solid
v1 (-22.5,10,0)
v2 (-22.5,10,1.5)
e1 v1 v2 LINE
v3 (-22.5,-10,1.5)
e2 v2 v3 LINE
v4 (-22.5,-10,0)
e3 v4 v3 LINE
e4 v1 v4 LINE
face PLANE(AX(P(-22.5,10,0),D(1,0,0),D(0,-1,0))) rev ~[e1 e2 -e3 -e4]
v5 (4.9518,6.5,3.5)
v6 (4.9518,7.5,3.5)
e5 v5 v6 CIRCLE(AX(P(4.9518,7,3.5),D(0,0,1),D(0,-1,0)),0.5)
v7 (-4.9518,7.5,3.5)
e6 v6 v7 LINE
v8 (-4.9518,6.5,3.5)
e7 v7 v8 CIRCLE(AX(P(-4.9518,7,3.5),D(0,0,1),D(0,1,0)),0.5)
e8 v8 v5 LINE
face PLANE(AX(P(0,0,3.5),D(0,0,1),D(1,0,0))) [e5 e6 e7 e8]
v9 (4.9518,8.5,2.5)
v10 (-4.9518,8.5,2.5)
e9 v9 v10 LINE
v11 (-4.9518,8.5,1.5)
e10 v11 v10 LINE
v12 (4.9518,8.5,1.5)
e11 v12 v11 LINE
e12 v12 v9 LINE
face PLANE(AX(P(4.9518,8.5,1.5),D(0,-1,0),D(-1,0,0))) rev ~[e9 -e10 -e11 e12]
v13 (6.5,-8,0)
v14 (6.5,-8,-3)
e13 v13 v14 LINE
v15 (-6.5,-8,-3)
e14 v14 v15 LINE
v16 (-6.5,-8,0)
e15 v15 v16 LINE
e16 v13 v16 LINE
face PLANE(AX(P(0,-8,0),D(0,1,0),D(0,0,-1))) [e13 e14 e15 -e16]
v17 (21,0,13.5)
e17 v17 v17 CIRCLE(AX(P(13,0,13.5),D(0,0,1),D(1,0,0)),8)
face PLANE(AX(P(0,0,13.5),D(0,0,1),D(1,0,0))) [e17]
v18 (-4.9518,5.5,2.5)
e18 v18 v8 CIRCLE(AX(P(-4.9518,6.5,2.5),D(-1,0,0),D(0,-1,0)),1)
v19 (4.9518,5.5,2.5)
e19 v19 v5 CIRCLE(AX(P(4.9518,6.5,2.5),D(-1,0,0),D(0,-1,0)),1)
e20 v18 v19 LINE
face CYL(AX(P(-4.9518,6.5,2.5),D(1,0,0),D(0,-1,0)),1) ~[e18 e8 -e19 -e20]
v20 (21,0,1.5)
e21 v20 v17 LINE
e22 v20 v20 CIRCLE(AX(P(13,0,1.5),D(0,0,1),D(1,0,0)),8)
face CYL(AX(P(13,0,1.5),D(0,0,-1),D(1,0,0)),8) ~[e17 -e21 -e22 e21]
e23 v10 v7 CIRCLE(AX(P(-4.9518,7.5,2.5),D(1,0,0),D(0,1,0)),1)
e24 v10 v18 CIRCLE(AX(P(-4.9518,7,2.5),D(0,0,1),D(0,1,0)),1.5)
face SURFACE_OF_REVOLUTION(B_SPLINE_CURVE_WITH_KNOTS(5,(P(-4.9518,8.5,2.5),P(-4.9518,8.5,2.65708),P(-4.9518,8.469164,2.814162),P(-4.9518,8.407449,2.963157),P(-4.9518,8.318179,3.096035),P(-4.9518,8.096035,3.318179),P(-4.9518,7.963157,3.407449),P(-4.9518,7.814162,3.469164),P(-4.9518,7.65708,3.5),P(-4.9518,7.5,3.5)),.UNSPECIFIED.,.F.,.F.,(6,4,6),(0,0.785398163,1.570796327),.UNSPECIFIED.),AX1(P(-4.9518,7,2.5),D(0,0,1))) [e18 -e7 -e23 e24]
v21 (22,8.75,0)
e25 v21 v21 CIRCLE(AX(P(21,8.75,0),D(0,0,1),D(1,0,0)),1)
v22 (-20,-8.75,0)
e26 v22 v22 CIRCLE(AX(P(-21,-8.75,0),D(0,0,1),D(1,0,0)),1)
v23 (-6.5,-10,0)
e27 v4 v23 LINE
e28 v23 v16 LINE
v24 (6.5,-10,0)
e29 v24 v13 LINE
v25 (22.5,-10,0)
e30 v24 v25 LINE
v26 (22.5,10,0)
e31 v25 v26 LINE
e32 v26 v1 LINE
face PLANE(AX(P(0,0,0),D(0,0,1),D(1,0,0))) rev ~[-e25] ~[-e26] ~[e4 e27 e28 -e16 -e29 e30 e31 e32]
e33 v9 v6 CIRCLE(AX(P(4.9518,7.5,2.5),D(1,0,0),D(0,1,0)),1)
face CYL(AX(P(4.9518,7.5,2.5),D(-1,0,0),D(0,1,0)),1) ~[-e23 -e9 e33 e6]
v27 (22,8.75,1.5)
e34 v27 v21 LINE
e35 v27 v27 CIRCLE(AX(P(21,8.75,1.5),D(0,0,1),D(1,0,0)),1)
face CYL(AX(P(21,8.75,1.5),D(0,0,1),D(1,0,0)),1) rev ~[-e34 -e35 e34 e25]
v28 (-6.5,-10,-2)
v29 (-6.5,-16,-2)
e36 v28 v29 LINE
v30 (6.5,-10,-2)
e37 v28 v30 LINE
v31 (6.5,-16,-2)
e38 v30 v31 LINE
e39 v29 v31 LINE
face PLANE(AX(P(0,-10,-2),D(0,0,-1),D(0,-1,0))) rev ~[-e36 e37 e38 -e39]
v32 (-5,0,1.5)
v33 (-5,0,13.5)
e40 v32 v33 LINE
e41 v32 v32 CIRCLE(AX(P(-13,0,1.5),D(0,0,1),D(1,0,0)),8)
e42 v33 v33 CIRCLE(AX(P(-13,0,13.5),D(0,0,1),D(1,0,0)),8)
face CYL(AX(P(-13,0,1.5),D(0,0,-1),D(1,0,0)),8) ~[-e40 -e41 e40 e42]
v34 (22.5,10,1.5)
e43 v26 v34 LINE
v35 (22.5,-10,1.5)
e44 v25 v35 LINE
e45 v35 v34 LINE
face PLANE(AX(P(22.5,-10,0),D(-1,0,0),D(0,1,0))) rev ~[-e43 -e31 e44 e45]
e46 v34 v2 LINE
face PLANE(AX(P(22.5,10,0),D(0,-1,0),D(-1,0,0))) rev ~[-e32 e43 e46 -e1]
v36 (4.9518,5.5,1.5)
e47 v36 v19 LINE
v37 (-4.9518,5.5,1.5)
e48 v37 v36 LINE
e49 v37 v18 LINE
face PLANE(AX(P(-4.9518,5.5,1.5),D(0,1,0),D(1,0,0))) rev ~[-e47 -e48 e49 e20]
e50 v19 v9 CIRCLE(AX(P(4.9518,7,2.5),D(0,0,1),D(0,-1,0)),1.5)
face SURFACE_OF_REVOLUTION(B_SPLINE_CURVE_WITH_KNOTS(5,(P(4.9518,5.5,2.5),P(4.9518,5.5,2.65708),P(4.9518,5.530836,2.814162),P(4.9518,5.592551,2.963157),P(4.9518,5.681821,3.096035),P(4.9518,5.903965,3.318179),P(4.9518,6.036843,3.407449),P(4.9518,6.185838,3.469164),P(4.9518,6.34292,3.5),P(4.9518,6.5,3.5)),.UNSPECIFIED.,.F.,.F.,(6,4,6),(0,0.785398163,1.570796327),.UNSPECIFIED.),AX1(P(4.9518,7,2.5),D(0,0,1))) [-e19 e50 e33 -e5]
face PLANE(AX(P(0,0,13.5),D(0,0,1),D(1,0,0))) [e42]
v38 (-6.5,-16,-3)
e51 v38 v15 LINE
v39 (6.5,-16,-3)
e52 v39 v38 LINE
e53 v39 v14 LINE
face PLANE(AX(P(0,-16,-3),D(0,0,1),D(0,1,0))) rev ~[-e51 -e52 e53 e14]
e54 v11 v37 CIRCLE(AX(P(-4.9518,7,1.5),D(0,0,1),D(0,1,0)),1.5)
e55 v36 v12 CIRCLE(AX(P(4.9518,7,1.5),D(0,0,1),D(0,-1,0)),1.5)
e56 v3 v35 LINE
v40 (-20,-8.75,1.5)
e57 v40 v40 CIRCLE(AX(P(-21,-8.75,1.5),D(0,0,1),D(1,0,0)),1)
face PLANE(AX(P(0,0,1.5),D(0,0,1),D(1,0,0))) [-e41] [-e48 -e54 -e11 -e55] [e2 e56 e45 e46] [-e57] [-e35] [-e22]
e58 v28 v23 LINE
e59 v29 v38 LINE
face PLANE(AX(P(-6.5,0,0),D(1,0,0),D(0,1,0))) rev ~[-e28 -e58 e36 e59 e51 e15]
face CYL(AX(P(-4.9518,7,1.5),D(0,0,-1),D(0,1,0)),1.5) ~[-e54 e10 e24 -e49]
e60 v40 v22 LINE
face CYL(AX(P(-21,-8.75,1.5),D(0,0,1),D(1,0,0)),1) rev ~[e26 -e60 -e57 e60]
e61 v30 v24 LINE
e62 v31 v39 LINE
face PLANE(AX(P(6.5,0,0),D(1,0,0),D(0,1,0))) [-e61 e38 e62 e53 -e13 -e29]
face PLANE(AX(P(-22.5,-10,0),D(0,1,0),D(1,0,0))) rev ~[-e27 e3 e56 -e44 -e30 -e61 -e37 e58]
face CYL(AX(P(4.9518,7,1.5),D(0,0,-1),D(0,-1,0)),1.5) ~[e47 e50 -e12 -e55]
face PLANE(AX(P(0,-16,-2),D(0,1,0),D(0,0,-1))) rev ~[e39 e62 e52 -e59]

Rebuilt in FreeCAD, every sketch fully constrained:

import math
import FreeCAD as App
import Part
import Sketcher

V = App.Vector


def edges_at(feature, points):
    """Names of the edges that pass closest to the given points."""
    edges = feature.Shape.Edges
    near = lambda p: min(range(len(edges)), key=lambda i: edges[i].distToShape(Part.Vertex(*p))[0])
    return sorted({f"Edge{near(p) + 1}" for p in points})

doc = App.newDocument("Part")
body = doc.addObject("PartDesign::Body", "Body")

# Sketch on XY plane
sketch1 = body.newObject("Sketcher::SketchObject", "Sketch")
sketch1.AttachmentSupport = (doc.getObject("XY_Plane"), [""])
sketch1.MapMode = "FlatFace"
sketch1.addGeometry(Part.LineSegment(V(-22, 10, 0), V(-22, -10, 0)), False)
sketch1.addGeometry(Part.LineSegment(V(-22, -10, 0), V(22, -10, 0)), False)
sketch1.addGeometry(Part.LineSegment(V(22, -10, 0), V(22, 10, 0)), False)
sketch1.addGeometry(Part.LineSegment(V(22, 10, 0), V(-22, 10, 0)), False)
sketch1.addConstraint(Sketcher.Constraint("Coincident", 0, 2, 1, 1))
sketch1.addConstraint(Sketcher.Constraint("Coincident", 1, 2, 2, 1))
sketch1.addConstraint(Sketcher.Constraint("Coincident", 2, 2, 3, 1))
sketch1.addConstraint(Sketcher.Constraint("Coincident", 3, 2, 0, 1))
sketch1.addConstraint(Sketcher.Constraint("Vertical", 0))
sketch1.addConstraint(Sketcher.Constraint("Horizontal", 1))
sketch1.addConstraint(Sketcher.Constraint("Vertical", 2))
sketch1.addConstraint(Sketcher.Constraint("Horizontal", 3))
sketch1.addConstraint(Sketcher.Constraint("Symmetric", 0, 2, 2, 2, -1, 1))
sketch1.addConstraint(Sketcher.Constraint("DistanceX", 1, 1, 1, 2, 45.0))
sketch1.addConstraint(Sketcher.Constraint("DistanceY", 0, 2, 0, 1, 20.0))
pad1 = body.newObject("PartDesign::Pad", "Pad")
pad1.Profile = sketch1
pad1.Length = 1.5

# Sketch on XY plane
sketch2 = body.newObject("Sketcher::SketchObject", "Sketch001")
sketch2.AttachmentSupport = (doc.getObject("XY_Plane"), [""])
sketch2.MapMode = "FlatFace"
sketch2.AttachmentOffset = App.Placement(V(0, 0, 1.5), App.Rotation())
sketch2.addGeometry(Part.Circle(V(13, 0, 0), V(0, 0, 1), 8), False)
sketch2.addGeometry(Part.Circle(V(-13, 0, 0), V(0, 0, 1), 8), False)
sketch2.addConstraint(Sketcher.Constraint("Equal", 0, 1))
sketch2.addConstraint(Sketcher.Constraint("Symmetric", 0, 3, 1, 3, -1, 1))
sketch2.addConstraint(Sketcher.Constraint("PointOnObject", 0, 3, -1))
sketch2.addConstraint(Sketcher.Constraint("Diameter", 0, 16.0))
sketch2.addConstraint(Sketcher.Constraint("DistanceX", -1, 1, 0, 3, 13.0))
pad2 = body.newObject("PartDesign::Pad", "Pad001")
pad2.Profile = sketch2
pad2.Length = 12

# Sketch on XY plane
sketch3 = body.newObject("Sketcher::SketchObject", "Sketch002")
sketch3.AttachmentSupport = (doc.getObject("XY_Plane"), [""])
sketch3.MapMode = "FlatFace"
sketch3.AttachmentOffset = App.Placement(V(0, 0, 1.5), App.Rotation())
sketch3.addGeometry(Part.ArcOfCircle(Part.Circle(V(-5, 7, 0), V(0, 0, 1), 1.5), math.radians(90), math.radians(270)), False)
sketch3.addGeometry(Part.LineSegment(V(-5, 5.5, 0), V(5, 5.5, 0)), False)
sketch3.addGeometry(Part.ArcOfCircle(Part.Circle(V(5, 7, 0), V(0, 0, 1), 1.5), math.radians(-90), math.radians(90)), False)
sketch3.addGeometry(Part.LineSegment(V(5, 8.5, 0), V(-5, 8.5, 0)), False)
sketch3.addConstraint(Sketcher.Constraint("Tangent", 0, 2, 1, 1))
sketch3.addConstraint(Sketcher.Constraint("Tangent", 1, 2, 2, 1))
sketch3.addConstraint(Sketcher.Constraint("Tangent", 2, 2, 3, 1))
sketch3.addConstraint(Sketcher.Constraint("Tangent", 3, 2, 0, 1))
sketch3.addConstraint(Sketcher.Constraint("Horizontal", 1))
sketch3.addConstraint(Sketcher.Constraint("Horizontal", 3))
sketch3.addConstraint(Sketcher.Constraint("Radius", 0, 1.5))
sketch3.addConstraint(Sketcher.Constraint("DistanceY", -1, 1, 0, 3, 7.0))
sketch3.addConstraint(Sketcher.Constraint("DistanceX", 1, 1, 1, 2, 9.9036))
sketch3.addConstraint(Sketcher.Constraint("DistanceX", 0, 3, -1, 1, 4.9518))
pad3 = body.newObject("PartDesign::Pad", "Pad002")
pad3.Profile = sketch3
pad3.Length = 2
doc.recompute()

fillet = body.newObject("PartDesign::Fillet", "Fillet")
fillet.Base = (pad3, edges_at(pad3, [
    (0, 8.5, 3.5),
    (-6.452, 7, 3.5),
    (0, 5.5, 3.5),
    (6.452, 7, 3.5),
]))
fillet.Radius = 1

# Sketch on XY plane
sketch4 = body.newObject("Sketcher::SketchObject", "Sketch003")
sketch4.AttachmentSupport = (doc.getObject("XY_Plane"), [""])
sketch4.MapMode = "FlatFace"
sketch4.AttachmentOffset = App.Placement(V(0, 0, 1.5), App.Rotation())
sketch4.addGeometry(Part.Circle(V(21, 8.8, 0), V(0, 0, 1), 1), False)
sketch4.addGeometry(Part.Circle(V(-21, -8.8, 0), V(0, 0, 1), 1), False)
sketch4.addConstraint(Sketcher.Constraint("Equal", 0, 1))
sketch4.addConstraint(Sketcher.Constraint("Symmetric", 0, 3, 1, 3, -1, 1))
sketch4.addConstraint(Sketcher.Constraint("Diameter", 0, 2.0))
sketch4.addConstraint(Sketcher.Constraint("DistanceX", -1, 1, 0, 3, 21.0))
sketch4.addConstraint(Sketcher.Constraint("DistanceY", 1, 3, 0, 3, 17.5))
pocket1 = body.newObject("PartDesign::Pocket", "Pocket")
pocket1.Profile = sketch4
pocket1.Type = "ThroughAll"

# Sketch on YZ plane
sketch5 = body.newObject("Sketcher::SketchObject", "Sketch004")
sketch5.AttachmentSupport = (doc.getObject("YZ_Plane"), [""])
sketch5.MapMode = "FlatFace"
sketch5.addGeometry(Part.LineSegment(V(-8, 0, 0), V(-10, 0, 0)), False)
sketch5.addGeometry(Part.LineSegment(V(-10, 0, 0), V(-10, -2, 0)), False)
sketch5.addGeometry(Part.LineSegment(V(-10, -2, 0), V(-16, -2, 0)), False)
sketch5.addGeometry(Part.LineSegment(V(-16, -2, 0), V(-16, -3, 0)), False)
sketch5.addGeometry(Part.LineSegment(V(-16, -3, 0), V(-8, -3, 0)), False)
sketch5.addGeometry(Part.LineSegment(V(-8, -3, 0), V(-8, 0, 0)), False)
sketch5.addConstraint(Sketcher.Constraint("Coincident", 0, 2, 1, 1))
sketch5.addConstraint(Sketcher.Constraint("Coincident", 1, 2, 2, 1))
sketch5.addConstraint(Sketcher.Constraint("Coincident", 2, 2, 3, 1))
sketch5.addConstraint(Sketcher.Constraint("Coincident", 3, 2, 4, 1))
sketch5.addConstraint(Sketcher.Constraint("Coincident", 4, 2, 5, 1))
sketch5.addConstraint(Sketcher.Constraint("Coincident", 5, 2, 0, 1))
sketch5.addConstraint(Sketcher.Constraint("Horizontal", 0))
sketch5.addConstraint(Sketcher.Constraint("Vertical", 1))
sketch5.addConstraint(Sketcher.Constraint("Horizontal", 2))
sketch5.addConstraint(Sketcher.Constraint("Vertical", 3))
sketch5.addConstraint(Sketcher.Constraint("Horizontal", 4))
sketch5.addConstraint(Sketcher.Constraint("Vertical", 5))
sketch5.addConstraint(Sketcher.Constraint("PointOnObject", 0, 2, -1))
sketch5.addConstraint(Sketcher.Constraint("Equal", 0, 1))
sketch5.addConstraint(Sketcher.Constraint("DistanceX", 0, 2, 0, 1, 2.0))
sketch5.addConstraint(Sketcher.Constraint("DistanceX", 4, 1, 4, 2, 8.0))
sketch5.addConstraint(Sketcher.Constraint("DistanceY", 3, 2, 3, 1, 1.0))
sketch5.addConstraint(Sketcher.Constraint("DistanceX", 4, 2, -1, 1, 8.0))
pad4 = body.newObject("PartDesign::Pad", "Pad003")
pad4.Profile = sketch5
pad4.Length = 13
pad4.Midplane = True

doc.recompute()
